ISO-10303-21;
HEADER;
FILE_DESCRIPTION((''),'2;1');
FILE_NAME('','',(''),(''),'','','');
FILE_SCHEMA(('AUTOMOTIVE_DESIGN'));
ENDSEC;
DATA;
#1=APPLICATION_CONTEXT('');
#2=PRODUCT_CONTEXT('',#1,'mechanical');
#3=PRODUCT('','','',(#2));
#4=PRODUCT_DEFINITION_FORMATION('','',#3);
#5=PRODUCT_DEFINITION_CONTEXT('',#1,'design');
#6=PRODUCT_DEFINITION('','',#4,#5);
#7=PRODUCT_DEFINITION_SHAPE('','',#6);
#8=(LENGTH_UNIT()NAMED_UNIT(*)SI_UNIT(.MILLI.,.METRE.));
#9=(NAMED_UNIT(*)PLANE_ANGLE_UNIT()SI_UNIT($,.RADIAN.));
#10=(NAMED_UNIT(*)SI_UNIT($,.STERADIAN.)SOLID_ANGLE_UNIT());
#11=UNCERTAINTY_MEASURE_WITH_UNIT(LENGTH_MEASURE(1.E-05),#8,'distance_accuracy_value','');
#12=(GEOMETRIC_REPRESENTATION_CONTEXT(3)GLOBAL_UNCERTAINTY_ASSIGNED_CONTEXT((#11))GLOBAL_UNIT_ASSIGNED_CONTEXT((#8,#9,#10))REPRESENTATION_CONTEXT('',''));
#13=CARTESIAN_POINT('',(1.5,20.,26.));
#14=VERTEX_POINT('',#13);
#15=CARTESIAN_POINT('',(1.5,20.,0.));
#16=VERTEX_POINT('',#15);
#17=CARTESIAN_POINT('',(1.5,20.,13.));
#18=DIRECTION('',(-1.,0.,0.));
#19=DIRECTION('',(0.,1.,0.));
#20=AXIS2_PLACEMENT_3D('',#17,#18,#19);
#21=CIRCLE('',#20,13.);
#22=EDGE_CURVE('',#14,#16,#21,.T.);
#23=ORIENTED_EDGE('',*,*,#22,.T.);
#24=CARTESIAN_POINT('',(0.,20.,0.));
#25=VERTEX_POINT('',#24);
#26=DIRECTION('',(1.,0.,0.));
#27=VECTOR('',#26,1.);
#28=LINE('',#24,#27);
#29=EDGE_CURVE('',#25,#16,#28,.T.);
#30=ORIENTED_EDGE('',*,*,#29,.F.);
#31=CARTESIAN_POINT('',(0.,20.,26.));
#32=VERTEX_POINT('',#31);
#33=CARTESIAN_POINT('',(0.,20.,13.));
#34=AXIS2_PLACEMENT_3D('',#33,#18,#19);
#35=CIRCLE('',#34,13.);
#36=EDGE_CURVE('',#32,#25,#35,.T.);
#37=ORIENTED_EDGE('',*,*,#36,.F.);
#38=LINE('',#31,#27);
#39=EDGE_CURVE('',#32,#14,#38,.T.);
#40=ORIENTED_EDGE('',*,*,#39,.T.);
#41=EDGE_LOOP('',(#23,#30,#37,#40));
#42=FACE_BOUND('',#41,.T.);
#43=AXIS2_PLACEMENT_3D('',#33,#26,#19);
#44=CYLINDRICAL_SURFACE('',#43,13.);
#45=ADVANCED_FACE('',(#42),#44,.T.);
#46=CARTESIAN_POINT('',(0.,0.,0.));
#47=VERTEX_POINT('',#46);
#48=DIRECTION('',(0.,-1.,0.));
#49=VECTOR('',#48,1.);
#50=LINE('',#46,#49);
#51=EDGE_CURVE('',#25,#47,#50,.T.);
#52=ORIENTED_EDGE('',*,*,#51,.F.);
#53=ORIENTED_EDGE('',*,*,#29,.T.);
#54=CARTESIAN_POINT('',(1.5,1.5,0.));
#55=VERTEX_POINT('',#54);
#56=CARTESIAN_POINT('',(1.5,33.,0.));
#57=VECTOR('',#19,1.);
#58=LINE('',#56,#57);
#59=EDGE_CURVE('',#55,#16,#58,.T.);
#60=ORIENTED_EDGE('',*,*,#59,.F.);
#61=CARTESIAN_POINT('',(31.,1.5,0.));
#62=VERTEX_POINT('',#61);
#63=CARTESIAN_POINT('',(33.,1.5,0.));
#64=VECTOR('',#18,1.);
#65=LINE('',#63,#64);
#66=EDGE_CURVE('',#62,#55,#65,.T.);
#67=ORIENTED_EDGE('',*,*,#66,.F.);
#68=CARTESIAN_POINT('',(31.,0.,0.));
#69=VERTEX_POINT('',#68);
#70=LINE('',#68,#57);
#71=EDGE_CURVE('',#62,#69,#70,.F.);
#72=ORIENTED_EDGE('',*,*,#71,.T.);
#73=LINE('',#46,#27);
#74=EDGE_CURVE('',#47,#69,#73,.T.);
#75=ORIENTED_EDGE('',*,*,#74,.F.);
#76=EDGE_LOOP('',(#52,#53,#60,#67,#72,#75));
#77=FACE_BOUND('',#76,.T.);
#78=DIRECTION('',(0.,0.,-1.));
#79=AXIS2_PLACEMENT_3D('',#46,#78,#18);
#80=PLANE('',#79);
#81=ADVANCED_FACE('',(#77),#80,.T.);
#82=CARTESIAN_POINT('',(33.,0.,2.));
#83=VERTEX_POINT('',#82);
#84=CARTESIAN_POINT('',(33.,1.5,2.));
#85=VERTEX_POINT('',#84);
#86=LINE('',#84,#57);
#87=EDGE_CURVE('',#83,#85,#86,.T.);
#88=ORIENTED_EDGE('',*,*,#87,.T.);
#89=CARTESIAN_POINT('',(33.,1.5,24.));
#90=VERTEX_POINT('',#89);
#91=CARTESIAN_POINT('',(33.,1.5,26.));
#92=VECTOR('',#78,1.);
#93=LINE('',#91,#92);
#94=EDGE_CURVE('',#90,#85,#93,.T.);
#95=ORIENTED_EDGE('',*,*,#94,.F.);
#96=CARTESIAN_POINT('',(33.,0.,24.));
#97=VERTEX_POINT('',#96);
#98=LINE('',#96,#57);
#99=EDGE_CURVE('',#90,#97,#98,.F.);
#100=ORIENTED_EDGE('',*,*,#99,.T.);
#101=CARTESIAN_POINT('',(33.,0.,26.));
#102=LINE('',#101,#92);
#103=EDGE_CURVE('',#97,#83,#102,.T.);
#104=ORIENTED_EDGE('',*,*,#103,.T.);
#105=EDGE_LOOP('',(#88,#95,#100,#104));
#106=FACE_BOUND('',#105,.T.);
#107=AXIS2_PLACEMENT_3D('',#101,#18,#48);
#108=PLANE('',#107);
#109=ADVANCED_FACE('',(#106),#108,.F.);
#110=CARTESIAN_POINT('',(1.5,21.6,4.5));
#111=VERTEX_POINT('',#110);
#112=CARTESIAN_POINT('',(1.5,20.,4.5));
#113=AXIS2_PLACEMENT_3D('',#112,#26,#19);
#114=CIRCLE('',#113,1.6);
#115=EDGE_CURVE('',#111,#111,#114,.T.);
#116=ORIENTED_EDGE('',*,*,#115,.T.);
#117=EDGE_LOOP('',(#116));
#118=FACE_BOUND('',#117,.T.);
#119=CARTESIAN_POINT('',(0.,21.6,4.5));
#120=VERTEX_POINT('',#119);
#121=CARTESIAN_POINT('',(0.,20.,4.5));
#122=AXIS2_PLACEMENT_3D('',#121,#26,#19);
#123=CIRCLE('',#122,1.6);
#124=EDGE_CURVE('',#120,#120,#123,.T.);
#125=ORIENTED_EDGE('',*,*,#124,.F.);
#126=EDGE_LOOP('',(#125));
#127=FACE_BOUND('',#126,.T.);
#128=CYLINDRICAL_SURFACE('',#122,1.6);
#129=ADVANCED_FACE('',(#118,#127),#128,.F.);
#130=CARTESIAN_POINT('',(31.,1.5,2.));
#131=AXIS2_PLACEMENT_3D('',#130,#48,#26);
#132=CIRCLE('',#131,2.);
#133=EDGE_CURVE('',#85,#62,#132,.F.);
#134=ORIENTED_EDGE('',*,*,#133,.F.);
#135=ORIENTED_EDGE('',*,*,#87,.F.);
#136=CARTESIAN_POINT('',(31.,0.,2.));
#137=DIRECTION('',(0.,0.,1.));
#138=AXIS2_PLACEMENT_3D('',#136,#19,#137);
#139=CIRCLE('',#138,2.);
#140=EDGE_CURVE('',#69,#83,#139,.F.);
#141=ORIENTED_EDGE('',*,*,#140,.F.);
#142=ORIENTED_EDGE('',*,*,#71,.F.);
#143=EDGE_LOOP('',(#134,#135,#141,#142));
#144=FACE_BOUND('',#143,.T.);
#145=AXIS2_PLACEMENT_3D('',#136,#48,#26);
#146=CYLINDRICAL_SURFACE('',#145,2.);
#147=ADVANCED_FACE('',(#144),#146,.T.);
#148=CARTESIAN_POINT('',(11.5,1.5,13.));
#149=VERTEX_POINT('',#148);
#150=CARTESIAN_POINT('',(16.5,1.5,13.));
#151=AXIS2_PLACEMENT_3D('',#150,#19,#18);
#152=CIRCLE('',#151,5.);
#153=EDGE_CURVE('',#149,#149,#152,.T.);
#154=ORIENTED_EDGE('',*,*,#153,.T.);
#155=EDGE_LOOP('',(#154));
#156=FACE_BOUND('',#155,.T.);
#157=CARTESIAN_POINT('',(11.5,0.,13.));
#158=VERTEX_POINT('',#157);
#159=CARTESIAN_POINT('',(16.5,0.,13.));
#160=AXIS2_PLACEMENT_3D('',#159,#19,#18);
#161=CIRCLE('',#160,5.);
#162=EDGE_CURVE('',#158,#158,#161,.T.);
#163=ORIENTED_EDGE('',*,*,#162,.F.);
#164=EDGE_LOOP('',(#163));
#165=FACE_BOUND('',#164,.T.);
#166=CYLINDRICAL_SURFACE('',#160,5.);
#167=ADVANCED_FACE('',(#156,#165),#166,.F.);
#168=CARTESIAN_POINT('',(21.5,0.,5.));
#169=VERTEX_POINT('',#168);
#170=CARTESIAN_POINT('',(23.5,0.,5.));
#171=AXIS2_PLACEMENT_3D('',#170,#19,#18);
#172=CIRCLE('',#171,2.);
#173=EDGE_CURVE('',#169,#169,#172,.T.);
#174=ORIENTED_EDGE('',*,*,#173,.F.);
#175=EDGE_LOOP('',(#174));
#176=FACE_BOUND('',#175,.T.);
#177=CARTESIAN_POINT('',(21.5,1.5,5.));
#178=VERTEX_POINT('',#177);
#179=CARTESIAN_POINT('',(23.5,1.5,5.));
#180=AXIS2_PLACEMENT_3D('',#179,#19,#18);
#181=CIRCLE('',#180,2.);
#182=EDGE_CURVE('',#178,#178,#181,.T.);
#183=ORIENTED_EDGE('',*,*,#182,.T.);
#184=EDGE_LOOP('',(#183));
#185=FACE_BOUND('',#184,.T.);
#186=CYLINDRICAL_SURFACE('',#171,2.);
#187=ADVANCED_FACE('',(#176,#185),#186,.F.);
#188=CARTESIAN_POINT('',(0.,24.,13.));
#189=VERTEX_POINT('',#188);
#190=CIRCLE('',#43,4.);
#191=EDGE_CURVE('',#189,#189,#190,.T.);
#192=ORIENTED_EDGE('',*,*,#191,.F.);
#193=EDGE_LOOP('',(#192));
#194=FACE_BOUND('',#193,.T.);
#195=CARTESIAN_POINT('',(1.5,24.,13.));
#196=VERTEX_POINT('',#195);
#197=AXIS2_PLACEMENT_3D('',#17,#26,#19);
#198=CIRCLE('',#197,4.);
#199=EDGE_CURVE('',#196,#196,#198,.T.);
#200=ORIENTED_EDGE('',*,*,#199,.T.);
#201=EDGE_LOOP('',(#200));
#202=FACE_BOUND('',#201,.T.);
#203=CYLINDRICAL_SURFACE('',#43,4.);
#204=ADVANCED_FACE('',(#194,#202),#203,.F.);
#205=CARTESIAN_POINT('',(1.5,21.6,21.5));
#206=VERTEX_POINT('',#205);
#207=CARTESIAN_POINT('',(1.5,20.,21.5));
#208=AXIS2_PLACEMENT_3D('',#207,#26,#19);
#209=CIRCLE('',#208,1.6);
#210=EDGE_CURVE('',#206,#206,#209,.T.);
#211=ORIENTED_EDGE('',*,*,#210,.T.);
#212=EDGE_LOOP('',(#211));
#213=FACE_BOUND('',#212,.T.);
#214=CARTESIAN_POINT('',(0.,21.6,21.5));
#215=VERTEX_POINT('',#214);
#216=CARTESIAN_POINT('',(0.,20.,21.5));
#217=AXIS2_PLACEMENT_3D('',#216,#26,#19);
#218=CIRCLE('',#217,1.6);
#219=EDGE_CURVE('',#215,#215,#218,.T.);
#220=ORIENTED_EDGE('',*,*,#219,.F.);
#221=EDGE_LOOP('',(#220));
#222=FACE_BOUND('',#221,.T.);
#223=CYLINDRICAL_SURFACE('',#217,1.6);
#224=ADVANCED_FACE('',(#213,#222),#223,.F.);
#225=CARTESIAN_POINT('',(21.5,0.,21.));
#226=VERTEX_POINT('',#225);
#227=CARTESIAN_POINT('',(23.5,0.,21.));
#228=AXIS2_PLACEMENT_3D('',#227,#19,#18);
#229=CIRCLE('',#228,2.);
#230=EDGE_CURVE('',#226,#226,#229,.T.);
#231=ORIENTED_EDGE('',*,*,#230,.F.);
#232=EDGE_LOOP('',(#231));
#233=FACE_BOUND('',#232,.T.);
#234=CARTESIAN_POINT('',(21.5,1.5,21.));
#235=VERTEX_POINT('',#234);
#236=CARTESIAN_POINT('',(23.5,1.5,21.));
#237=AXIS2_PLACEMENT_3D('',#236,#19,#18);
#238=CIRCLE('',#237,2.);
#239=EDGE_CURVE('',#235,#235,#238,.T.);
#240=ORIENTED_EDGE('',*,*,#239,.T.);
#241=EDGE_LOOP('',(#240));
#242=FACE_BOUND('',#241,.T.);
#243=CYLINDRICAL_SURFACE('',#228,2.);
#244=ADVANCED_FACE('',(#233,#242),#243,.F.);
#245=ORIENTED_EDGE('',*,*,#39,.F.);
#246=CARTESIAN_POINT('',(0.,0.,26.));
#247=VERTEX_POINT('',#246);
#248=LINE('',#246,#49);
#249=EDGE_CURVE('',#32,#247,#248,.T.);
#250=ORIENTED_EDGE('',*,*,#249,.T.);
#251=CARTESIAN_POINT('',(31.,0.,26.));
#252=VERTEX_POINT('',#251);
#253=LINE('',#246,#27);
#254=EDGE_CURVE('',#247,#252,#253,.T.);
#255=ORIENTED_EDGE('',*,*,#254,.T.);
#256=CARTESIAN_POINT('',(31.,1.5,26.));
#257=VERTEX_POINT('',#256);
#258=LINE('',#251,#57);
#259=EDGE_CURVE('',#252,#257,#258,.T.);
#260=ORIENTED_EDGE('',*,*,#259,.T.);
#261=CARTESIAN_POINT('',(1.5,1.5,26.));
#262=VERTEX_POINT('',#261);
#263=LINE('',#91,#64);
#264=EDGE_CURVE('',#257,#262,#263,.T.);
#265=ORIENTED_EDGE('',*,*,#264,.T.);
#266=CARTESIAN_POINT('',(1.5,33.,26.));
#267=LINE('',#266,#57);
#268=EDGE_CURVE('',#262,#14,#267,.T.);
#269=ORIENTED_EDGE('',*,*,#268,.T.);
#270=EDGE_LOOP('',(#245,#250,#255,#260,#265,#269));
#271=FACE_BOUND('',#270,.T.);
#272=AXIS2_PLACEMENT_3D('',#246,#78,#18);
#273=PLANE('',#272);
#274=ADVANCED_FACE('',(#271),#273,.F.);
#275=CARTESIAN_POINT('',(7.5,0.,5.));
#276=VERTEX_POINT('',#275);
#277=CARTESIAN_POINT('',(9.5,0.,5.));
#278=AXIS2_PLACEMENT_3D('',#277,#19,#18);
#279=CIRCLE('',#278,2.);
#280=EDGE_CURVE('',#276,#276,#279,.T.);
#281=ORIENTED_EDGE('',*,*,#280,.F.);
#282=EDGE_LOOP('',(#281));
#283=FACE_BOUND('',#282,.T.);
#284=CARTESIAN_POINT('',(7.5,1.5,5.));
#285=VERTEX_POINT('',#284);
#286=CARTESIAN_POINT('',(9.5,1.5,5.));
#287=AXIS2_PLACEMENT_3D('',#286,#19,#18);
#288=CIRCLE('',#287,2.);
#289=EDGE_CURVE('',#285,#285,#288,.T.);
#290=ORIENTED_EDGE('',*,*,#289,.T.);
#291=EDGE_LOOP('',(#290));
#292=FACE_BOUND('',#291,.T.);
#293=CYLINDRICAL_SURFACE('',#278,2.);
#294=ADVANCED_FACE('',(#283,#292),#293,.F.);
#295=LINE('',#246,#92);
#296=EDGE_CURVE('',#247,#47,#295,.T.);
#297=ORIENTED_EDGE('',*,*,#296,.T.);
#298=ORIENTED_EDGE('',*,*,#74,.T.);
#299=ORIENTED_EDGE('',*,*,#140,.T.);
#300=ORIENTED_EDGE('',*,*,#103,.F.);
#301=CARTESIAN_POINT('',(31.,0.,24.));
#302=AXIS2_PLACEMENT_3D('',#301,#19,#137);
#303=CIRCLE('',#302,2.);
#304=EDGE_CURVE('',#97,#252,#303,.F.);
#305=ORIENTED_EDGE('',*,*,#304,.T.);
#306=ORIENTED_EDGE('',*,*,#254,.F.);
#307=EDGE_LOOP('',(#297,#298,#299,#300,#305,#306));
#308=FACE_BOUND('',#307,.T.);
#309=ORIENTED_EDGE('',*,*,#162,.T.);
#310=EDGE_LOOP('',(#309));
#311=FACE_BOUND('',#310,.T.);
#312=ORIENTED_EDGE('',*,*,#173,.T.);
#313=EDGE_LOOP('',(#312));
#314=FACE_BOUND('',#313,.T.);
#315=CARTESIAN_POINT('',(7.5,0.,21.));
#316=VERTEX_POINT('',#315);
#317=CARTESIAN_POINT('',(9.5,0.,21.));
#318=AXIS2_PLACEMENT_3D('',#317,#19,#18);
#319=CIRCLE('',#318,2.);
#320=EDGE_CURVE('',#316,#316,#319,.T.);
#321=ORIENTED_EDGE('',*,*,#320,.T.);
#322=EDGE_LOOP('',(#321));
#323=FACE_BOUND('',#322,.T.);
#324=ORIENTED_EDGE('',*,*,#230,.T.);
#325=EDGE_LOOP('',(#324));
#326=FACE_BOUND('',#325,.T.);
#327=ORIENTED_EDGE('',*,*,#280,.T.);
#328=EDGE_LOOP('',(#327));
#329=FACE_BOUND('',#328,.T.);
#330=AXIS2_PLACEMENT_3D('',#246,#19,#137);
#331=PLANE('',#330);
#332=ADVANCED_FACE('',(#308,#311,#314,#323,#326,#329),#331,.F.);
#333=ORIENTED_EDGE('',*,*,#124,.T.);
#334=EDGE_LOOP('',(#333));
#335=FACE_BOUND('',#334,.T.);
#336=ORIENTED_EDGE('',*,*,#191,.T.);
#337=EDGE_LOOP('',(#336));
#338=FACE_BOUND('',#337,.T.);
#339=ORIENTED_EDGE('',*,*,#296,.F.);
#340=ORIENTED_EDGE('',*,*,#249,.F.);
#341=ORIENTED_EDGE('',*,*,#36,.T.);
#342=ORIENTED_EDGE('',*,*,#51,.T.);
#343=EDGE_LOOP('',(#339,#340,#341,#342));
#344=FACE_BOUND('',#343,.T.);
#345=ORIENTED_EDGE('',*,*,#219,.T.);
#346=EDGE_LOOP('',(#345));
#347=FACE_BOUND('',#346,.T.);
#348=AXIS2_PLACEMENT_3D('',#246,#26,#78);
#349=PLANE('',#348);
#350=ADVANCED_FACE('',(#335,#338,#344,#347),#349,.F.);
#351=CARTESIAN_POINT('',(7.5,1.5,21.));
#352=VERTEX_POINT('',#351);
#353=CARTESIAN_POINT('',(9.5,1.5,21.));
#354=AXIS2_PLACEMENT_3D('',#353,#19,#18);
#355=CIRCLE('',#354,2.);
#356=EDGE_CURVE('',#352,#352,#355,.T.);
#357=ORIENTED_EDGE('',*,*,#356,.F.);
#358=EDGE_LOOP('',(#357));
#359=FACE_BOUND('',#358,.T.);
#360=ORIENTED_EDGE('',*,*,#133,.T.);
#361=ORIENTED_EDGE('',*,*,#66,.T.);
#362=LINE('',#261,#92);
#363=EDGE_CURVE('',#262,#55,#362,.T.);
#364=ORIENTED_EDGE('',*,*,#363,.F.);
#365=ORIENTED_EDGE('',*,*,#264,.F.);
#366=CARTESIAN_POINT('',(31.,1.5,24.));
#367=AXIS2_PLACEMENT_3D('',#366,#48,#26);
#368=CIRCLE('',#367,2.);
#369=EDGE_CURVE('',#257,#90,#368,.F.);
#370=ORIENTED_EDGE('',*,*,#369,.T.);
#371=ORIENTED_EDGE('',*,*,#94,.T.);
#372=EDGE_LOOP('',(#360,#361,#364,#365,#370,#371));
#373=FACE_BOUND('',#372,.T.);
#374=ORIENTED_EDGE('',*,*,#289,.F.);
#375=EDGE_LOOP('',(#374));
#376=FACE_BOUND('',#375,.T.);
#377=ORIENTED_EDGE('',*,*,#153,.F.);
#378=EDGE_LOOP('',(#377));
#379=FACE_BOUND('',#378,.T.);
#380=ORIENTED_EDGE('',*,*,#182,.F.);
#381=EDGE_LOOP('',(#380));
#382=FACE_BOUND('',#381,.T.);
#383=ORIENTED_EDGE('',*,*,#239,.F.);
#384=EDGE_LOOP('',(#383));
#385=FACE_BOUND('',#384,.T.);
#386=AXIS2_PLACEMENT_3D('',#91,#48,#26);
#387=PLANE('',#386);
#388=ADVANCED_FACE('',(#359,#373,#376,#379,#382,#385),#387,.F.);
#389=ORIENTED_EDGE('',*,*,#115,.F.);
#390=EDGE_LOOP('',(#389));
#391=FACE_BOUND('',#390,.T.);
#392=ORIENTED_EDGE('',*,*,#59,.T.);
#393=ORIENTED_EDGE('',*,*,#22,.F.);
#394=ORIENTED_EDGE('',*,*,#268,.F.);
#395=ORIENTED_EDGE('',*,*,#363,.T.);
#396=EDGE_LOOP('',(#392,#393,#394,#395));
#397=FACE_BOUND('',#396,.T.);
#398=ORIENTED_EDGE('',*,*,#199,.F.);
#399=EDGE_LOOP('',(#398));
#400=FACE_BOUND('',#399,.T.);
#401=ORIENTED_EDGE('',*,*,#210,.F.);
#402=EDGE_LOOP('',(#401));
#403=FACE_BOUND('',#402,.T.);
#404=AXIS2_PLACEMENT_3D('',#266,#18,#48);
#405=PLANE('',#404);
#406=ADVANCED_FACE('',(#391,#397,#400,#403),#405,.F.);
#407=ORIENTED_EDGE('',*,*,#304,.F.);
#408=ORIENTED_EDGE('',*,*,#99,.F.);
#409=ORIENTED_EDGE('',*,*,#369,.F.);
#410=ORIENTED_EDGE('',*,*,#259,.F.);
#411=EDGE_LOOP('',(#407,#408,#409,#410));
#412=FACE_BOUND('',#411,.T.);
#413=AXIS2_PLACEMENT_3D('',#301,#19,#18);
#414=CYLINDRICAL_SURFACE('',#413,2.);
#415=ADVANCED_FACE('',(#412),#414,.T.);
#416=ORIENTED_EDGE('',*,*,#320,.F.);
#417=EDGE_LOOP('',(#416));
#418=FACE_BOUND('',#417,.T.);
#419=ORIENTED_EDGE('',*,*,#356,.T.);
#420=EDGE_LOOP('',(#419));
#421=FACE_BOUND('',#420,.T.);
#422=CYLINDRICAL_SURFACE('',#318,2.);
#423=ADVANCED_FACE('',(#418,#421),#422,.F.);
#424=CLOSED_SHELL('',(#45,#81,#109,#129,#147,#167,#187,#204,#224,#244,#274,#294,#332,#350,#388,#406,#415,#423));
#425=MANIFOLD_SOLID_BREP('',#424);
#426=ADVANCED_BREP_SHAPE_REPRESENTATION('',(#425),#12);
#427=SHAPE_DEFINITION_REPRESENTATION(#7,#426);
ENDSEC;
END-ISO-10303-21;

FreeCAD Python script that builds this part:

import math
import FreeCAD as App
import Part
import Sketcher
Q = App.Units.Quantity


def edges_at(feature, points):
    """Names of the edges that pass closest to the given points."""
    edges = feature.Shape.Edges
    near = lambda p: min(range(len(edges)), key=lambda i: edges[i].distToShape(Part.Vertex(*p))[0])
    return sorted({f"Edge{near(p) + 1}" for p in points})

doc = App.newDocument("Part")
body = doc.addObject("PartDesign::Body", "Body")

sketch1 = doc.addObject("Sketcher::SketchObject", "Sketch")
body.addObject(sketch1)
sketch1.AttachmentSupport = (doc.XY_Plane, [""])
sketch1.MapMode = "FlatFace"
sketch1.addGeometry([
    Part.LineSegment(App.Vector(0, 0, 0), App.Vector(33, 0, 0)),
    Part.LineSegment(App.Vector(33, 0, 0), App.Vector(33, 1.5, 0)),
    Part.LineSegment(App.Vector(33, 1.5, 0), App.Vector(1.5, 1.5, 0)),
    Part.LineSegment(App.Vector(1.5, 1.5, 0), App.Vector(1.5, 33, 0)),
    Part.LineSegment(App.Vector(1.5, 33, 0), App.Vector(0, 33, 0)),
    Part.LineSegment(App.Vector(0, 33, 0), App.Vector(0, 0, 0)),
], False)
sketch1.addConstraint([
    Sketcher.Constraint("Coincident", 0, 2, 1, 1),
    Sketcher.Constraint("Coincident", 1, 2, 2, 1),
    Sketcher.Constraint("Coincident", 2, 2, 3, 1),
    Sketcher.Constraint("Coincident", 3, 2, 4, 1),
    Sketcher.Constraint("Coincident", 4, 2, 5, 1),
    Sketcher.Constraint("Coincident", 5, 2, 0, 1),
    Sketcher.Constraint("Horizontal", 0),
    Sketcher.Constraint("Vertical", 1),
    Sketcher.Constraint("Horizontal", 2),
    Sketcher.Constraint("Vertical", 3),
    Sketcher.Constraint("Horizontal", 4),
    Sketcher.Constraint("Vertical", 5),
    Sketcher.Constraint("Coincident", 5, 2, -1, 1),
    Sketcher.Constraint("Equal", 4, 1),
    Sketcher.Constraint("Equal", 2, 3),
    Sketcher.Constraint("DistanceX", 0, 1, 0, 2, Q("33 mm")),
    Sketcher.Constraint("DistanceX", 2, 2, 2, 1, Q("31.5 mm")),
])
pad1 = doc.addObject("PartDesign::Pad", "Pad")
body.addObject(pad1)
pad1.Profile = sketch1
pad1.Length = 26
doc.recompute()

fillet = doc.addObject("PartDesign::Fillet", "Fillet")
body.addObject(fillet)
fillet.Base = (pad1, edges_at(pad1, [(33, 0.75, 26), (33, 0.75, 0)]))
fillet.Radius = 2

sketch2 = doc.addObject("Sketcher::SketchObject", "Sketch001")
body.addObject(sketch2)
sketch2.AttachmentSupport = (doc.XZ_Plane, [""])
sketch2.MapMode = "FlatFace"
sketch2.AttachmentOffset = App.Placement(App.Vector(0, 0, -1.5), App.Rotation())
sketch2.addGeometry([
    Part.Circle(App.Vector(16.5, 13, 0), App.Vector(0, 0, 1), 5),
    Part.Circle(App.Vector(9.5, 5, 0), App.Vector(0, 0, 1), 2),
    Part.Circle(App.Vector(23.5, 5, 0), App.Vector(0, 0, 1), 2),
    Part.Circle(App.Vector(23.5, 21, 0), App.Vector(0, 0, 1), 2),
    Part.Circle(App.Vector(9.5, 21, 0), App.Vector(0, 0, 1), 2),
], False)
sketch2.addConstraint([
    Sketcher.Constraint("Equal", 1, 2),
    Sketcher.Constraint("Equal", 2, 3),
    Sketcher.Constraint("Equal", 3, 4),
    Sketcher.Constraint("Horizontal", 1, 3, 2, 3),
    Sketcher.Constraint("Horizontal", 3, 3, 4, 3),
    Sketcher.Constraint("Vertical", 2, 3, 3, 3),
    Sketcher.Constraint("Vertical", 1, 3, 4, 3),
    Sketcher.Constraint("Diameter", 0, Q("10 mm")),
    Sketcher.Constraint("Diameter", 1, Q("4 mm")),
    Sketcher.Constraint("DistanceY", -1, 1, 0, 3, Q("13 mm")),
    Sketcher.Constraint("DistanceY", -1, 1, 1, 3, Q("5 mm")),
    Sketcher.Constraint("DistanceY", -1, 1, 3, 3, Q("21 mm")),
    Sketcher.Constraint("DistanceX", 1, 3, 0, 3, Q("7 mm")),
    Sketcher.Constraint("DistanceX", 0, 3, 2, 3, Q("7 mm")),
    Sketcher.Constraint("DistanceX", -1, 1, 0, 3, Q("16.5 mm")),
])
pocket1 = doc.addObject("PartDesign::Pocket", "Pocket")
body.addObject(pocket1)
pocket1.Profile = sketch2
pocket1.Type = "ThroughAll"
pocket1.Reversed = True

sketch3 = doc.addObject("Sketcher::SketchObject", "Sketch002")
body.addObject(sketch3)
sketch3.AttachmentSupport = (doc.YZ_Plane, [""])
sketch3.MapMode = "FlatFace"
sketch3.AttachmentOffset = App.Placement(App.Vector(0, 0, 1.5), App.Rotation())
sketch3.addGeometry([
    Part.Circle(App.Vector(20, 13, 0), App.Vector(0, 0, 1), 4),
    Part.Circle(App.Vector(20, 21.5, 0), App.Vector(0, 0, 1), 1.6),
    Part.Circle(App.Vector(20, 4.5, 0), App.Vector(0, 0, 1), 1.6),
    Part.LineSegment(App.Vector(38.6, 26, 0), App.Vector(20, 26, 0)),
    Part.ArcOfCircle(Part.Circle(App.Vector(20, 13, 0), App.Vector(0, 0, 1), 13), math.radians(-90), math.radians(90)),
    Part.LineSegment(App.Vector(20, 0, 0), App.Vector(38.6, 0, 0)),
    Part.LineSegment(App.Vector(38.6, 0, 0), App.Vector(38.6, 26, 0)),
], False)
sketch3.addConstraint([
    Sketcher.Constraint("Tangent", 3, 2, 4, 2),
    Sketcher.Constraint("Tangent", 4, 1, 5, 1),
    Sketcher.Constraint("Coincident", 5, 2, 6, 1),
    Sketcher.Constraint("Coincident", 6, 2, 3, 1),
    Sketcher.Constraint("Horizontal", 3),
    Sketcher.Constraint("Horizontal", 5),
    Sketcher.Constraint("Vertical", 6),
    Sketcher.Constraint("Coincident", 4, 3, 0, 3),
    Sketcher.Constraint("Equal", 1, 2),
    Sketcher.Constraint("PointOnObject", 4, 1, -1),
    Sketcher.Constraint("Vertical", 0, 3, 1, 3),
    Sketcher.Constraint("Vertical", 1, 3, 2, 3),
    Sketcher.Constraint("Diameter", 0, Q("8 mm")),
    Sketcher.Constraint("Radius", 4, Q("13 mm")),
    Sketcher.Constraint("Diameter", 1, Q("3.2 mm")),
    Sketcher.Constraint("DistanceX", -1, 1, 0, 3, Q("20 mm")),
    Sketcher.Constraint("DistanceY", 2, 3, 1, 3, Q("17 mm")),
    Sketcher.Constraint("DistanceY", -1, 1, 1, 3, Q("21.5 mm")),
    Sketcher.Constraint("DistanceX", 3, 2, 3, 1, Q("18.597102 mm")),
])
pocket2 = doc.addObject("PartDesign::Pocket", "Pocket001")
body.addObject(pocket2)
pocket2.Profile = sketch3
pocket2.Type = "ThroughAll"

doc.recompute()
